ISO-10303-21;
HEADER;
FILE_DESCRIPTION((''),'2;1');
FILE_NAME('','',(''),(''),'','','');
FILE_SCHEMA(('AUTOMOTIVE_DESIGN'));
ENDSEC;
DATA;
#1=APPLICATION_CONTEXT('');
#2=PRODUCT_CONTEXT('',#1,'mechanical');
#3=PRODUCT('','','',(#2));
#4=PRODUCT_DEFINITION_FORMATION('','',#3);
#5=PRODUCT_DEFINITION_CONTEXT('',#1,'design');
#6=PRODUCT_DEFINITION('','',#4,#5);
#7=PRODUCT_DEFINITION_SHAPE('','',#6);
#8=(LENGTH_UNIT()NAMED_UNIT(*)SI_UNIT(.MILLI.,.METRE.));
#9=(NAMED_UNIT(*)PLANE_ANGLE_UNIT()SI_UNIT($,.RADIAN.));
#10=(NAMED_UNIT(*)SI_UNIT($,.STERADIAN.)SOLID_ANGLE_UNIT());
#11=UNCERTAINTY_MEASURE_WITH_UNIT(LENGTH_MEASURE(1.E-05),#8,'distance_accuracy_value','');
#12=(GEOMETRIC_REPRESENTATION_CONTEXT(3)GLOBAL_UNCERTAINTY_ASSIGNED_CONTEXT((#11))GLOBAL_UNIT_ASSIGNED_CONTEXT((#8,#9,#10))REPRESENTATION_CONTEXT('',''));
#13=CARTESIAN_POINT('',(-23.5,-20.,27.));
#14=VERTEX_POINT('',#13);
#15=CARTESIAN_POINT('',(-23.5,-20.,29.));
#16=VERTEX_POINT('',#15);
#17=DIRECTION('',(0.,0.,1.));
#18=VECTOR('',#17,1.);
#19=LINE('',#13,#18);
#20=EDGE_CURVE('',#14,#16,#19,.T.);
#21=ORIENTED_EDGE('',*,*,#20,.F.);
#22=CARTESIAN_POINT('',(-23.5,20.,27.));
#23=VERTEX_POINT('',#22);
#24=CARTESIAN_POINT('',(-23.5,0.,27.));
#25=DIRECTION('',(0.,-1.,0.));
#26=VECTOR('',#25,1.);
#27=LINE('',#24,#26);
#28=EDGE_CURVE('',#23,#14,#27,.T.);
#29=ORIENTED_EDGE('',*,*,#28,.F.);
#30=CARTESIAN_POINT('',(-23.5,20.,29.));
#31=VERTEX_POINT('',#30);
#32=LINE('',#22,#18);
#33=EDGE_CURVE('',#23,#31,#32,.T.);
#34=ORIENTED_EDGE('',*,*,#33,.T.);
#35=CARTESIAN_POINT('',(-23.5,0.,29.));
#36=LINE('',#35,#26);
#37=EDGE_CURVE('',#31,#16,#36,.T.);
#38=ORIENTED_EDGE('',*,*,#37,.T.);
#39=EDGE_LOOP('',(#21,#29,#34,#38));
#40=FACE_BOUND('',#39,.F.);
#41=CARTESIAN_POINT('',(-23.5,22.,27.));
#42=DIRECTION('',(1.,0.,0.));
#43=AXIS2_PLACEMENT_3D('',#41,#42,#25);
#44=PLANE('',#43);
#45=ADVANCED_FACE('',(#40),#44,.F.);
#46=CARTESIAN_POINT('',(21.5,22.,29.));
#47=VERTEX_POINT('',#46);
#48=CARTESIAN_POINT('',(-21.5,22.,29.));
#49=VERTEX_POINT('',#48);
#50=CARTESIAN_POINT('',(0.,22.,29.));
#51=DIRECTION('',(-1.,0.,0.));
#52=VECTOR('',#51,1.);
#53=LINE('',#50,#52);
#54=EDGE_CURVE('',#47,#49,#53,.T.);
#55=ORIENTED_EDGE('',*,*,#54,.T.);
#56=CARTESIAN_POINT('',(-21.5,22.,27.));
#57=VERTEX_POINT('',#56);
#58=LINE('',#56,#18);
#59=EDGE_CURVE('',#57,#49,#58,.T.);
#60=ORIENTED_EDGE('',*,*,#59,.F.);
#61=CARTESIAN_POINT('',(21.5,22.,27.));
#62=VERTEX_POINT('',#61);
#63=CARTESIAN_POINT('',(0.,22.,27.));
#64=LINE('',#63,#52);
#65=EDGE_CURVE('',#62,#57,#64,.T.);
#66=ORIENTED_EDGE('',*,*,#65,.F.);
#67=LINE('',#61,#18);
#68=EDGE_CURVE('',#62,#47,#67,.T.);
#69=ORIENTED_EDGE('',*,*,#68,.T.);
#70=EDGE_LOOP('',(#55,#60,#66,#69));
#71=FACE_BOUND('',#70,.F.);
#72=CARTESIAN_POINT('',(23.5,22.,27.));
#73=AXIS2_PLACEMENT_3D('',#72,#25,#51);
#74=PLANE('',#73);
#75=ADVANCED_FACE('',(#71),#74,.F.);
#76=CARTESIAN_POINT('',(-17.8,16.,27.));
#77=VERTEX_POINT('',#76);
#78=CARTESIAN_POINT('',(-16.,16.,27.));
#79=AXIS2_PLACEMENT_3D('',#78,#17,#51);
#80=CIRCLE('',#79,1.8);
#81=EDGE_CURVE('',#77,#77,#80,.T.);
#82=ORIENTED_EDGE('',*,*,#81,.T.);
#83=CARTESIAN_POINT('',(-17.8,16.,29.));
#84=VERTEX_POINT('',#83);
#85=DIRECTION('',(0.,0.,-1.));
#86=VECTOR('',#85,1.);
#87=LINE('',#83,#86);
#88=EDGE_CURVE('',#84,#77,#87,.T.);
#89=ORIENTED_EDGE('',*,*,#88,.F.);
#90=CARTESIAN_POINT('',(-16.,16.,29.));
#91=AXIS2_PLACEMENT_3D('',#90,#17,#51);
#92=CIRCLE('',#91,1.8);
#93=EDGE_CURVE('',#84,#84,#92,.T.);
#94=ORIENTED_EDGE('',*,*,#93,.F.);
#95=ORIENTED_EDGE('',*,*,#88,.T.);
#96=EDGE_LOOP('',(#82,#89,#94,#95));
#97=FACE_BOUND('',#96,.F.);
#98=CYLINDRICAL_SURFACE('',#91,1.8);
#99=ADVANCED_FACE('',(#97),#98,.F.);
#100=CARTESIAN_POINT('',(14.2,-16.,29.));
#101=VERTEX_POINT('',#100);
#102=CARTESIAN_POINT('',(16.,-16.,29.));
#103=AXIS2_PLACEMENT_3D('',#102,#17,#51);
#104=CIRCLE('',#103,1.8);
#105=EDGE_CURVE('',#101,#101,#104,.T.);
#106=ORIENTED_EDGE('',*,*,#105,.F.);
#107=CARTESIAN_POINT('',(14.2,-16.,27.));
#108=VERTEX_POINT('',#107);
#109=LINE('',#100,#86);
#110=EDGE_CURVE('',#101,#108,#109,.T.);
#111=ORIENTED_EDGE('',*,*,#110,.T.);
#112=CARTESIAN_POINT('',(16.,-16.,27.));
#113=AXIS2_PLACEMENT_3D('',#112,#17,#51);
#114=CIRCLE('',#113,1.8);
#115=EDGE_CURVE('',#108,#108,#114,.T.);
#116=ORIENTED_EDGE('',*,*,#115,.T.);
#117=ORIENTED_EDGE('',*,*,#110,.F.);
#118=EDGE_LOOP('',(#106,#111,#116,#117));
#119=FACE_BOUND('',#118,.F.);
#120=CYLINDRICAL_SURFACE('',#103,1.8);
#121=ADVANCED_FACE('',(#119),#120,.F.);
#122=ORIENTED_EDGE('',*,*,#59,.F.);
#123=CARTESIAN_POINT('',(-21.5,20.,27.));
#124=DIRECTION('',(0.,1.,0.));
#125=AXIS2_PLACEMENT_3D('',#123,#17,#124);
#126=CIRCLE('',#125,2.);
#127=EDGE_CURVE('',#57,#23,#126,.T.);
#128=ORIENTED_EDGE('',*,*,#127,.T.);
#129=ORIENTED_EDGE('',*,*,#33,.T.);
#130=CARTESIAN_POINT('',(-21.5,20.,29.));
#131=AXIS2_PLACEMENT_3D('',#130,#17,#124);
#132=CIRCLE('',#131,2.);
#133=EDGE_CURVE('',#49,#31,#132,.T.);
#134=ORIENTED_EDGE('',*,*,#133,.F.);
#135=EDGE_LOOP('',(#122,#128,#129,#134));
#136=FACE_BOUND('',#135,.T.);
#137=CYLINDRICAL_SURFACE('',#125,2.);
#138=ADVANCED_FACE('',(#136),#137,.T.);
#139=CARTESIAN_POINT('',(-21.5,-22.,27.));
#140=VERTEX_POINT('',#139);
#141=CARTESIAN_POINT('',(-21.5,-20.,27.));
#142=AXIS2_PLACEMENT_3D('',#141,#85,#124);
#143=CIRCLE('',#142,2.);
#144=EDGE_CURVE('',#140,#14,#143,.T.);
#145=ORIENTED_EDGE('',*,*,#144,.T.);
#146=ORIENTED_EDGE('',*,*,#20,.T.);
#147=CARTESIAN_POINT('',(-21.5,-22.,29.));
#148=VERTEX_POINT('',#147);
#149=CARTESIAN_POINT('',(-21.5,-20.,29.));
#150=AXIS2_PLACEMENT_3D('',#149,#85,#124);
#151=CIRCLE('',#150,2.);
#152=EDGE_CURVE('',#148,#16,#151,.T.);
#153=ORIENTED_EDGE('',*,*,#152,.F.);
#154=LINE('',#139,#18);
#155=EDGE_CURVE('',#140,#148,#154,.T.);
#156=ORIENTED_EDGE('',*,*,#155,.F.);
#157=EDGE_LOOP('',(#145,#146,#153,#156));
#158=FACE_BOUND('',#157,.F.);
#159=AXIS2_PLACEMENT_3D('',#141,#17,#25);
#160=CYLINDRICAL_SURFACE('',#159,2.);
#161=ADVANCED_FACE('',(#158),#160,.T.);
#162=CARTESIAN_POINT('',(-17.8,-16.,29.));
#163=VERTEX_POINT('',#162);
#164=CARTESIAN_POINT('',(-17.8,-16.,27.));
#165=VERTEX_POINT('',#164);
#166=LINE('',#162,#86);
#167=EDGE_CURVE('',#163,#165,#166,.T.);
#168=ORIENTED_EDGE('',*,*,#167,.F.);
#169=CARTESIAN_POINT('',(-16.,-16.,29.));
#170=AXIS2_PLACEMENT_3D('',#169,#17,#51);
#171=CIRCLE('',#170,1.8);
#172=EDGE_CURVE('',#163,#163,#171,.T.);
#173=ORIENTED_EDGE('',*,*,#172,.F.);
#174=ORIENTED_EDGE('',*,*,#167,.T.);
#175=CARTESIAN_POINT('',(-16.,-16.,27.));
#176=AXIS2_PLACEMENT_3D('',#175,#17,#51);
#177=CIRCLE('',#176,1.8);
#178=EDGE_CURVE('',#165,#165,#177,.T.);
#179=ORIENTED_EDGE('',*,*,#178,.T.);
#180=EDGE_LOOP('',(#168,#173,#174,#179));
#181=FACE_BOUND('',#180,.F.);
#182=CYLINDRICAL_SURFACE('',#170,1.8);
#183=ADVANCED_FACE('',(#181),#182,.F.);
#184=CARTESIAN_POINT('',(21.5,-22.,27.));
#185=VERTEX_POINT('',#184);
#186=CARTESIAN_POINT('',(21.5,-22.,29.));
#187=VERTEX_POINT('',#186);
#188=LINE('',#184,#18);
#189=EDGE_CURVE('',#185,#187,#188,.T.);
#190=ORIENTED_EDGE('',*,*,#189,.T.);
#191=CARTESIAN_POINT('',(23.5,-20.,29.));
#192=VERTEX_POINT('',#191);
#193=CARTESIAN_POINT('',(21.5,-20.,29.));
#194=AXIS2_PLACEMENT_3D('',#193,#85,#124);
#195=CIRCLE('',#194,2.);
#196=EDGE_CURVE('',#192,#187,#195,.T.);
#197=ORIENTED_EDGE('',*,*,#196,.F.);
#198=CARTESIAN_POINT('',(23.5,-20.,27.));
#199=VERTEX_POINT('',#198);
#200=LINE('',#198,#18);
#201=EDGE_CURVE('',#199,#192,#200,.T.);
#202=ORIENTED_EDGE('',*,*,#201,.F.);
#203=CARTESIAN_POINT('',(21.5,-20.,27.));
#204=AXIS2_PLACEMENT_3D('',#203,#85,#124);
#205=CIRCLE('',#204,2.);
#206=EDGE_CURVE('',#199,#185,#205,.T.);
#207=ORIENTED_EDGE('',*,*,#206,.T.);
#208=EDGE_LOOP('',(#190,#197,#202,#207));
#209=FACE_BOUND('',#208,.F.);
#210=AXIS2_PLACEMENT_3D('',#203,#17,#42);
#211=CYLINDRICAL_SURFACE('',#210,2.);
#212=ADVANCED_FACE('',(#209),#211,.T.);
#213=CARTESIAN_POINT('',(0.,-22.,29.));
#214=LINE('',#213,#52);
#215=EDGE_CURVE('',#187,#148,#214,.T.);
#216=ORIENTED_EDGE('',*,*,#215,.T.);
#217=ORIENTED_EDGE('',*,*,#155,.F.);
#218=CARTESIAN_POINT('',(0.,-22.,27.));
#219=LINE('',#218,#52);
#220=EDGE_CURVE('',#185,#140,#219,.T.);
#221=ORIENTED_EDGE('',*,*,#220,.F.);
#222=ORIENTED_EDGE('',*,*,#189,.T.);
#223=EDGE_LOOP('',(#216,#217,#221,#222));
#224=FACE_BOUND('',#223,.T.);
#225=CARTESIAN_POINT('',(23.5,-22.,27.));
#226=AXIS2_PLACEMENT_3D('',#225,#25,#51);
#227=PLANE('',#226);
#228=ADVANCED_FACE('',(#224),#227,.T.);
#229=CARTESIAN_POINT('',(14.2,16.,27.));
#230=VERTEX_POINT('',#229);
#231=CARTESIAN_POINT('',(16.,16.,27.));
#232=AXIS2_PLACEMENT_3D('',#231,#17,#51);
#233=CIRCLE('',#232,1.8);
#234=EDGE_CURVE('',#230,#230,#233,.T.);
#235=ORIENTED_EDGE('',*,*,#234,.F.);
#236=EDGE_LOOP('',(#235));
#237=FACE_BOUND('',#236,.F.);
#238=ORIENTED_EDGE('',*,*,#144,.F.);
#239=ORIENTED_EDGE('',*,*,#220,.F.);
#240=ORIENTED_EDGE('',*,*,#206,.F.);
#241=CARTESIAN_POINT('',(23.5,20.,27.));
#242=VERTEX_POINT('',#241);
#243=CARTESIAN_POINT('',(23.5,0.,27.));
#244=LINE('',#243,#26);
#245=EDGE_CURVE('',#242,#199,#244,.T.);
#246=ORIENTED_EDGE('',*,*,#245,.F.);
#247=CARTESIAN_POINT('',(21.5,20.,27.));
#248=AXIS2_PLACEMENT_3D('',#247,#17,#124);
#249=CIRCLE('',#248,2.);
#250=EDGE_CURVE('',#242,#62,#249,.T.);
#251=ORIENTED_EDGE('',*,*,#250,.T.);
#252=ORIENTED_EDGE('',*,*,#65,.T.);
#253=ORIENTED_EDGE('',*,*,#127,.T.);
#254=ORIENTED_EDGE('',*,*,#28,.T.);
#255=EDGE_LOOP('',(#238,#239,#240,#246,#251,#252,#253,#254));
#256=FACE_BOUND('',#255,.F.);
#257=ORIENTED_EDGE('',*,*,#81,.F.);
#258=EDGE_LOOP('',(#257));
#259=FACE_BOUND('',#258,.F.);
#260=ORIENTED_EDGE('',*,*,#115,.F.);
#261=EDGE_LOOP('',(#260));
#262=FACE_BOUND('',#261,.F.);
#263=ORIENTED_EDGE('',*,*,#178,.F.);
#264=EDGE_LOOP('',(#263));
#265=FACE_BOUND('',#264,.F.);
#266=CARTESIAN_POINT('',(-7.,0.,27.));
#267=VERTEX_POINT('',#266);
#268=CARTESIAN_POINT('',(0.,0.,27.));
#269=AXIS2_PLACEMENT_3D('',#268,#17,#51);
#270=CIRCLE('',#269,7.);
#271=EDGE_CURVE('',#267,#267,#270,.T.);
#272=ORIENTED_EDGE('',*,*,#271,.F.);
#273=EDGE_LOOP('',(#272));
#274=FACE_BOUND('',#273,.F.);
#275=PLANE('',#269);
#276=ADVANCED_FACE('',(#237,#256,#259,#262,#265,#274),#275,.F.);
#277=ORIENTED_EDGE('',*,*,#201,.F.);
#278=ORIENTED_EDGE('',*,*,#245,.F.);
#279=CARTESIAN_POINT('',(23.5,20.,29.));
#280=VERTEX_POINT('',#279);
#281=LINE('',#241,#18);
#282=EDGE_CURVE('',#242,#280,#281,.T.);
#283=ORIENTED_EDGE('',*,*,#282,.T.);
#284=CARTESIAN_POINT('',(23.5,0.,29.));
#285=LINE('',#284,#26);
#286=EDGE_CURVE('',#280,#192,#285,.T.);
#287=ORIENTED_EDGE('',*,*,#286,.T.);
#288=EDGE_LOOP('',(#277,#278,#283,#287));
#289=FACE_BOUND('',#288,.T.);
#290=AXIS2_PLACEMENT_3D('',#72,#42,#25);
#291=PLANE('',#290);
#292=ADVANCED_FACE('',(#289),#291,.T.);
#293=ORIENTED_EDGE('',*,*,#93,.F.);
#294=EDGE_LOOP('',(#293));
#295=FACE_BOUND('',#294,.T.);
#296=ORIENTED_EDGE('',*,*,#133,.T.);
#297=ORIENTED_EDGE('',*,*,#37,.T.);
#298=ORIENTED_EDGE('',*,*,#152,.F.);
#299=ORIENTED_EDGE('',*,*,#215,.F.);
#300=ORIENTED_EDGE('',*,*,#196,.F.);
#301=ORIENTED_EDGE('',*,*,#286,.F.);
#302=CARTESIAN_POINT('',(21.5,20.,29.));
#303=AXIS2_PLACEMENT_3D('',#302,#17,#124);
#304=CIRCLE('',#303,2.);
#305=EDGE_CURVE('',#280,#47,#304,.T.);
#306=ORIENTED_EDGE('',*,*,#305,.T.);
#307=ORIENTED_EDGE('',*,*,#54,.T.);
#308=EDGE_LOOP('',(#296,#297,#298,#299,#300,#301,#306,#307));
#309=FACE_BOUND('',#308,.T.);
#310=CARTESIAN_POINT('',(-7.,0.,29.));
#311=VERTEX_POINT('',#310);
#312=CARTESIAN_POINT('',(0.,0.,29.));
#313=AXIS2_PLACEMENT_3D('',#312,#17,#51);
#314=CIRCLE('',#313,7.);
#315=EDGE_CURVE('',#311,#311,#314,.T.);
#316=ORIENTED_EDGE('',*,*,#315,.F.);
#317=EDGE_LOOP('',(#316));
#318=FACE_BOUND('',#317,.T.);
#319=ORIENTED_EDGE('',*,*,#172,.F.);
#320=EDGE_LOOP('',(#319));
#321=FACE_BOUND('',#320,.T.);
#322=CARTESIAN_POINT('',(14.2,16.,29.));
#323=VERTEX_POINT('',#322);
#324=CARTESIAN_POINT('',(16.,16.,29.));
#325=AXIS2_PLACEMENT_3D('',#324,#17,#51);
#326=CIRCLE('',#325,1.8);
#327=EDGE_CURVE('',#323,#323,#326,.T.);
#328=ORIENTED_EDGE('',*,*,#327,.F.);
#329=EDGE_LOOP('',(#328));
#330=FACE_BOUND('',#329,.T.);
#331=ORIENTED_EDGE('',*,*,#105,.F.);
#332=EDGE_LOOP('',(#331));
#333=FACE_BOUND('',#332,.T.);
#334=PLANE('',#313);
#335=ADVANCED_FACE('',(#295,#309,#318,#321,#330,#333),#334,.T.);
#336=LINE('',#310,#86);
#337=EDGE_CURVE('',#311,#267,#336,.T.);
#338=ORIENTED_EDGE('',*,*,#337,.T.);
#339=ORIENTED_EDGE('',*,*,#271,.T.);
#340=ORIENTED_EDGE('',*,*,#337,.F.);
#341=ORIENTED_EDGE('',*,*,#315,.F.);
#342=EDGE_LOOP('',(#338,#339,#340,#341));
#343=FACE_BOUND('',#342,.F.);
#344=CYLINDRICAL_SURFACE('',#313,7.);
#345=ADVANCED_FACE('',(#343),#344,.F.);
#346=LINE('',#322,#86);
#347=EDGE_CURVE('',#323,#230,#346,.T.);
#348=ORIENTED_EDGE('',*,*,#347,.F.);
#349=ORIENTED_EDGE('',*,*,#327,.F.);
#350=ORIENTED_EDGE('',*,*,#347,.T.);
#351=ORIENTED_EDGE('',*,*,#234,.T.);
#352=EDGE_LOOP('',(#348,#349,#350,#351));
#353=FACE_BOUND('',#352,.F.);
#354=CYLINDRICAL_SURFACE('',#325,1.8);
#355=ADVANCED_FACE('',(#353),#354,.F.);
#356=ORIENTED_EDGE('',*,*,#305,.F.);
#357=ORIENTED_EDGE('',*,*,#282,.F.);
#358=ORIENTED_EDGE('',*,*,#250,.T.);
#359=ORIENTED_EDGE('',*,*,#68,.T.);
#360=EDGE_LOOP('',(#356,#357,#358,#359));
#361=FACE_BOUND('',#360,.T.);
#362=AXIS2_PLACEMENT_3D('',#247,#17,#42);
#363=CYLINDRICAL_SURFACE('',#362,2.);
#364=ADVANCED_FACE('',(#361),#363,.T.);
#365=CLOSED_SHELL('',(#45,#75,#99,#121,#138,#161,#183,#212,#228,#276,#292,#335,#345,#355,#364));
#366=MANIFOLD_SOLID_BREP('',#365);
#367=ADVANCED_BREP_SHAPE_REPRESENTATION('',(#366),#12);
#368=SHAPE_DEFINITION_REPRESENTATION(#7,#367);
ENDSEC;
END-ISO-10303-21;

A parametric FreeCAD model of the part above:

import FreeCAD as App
import Part
import Sketcher


def edges_at(feature, points):
    """Names of the edges that pass closest to the given points."""
    edges = feature.Shape.Edges
    near = lambda p: min(range(len(edges)), key=lambda i: edges[i].distToShape(Part.Vertex(*p))[0])
    return sorted({f"Edge{near(p) + 1}" for p in points})

doc = App.newDocument("Part")
body = doc.addObject("PartDesign::Body", "Body")

sketch1 = body.newObject("Sketcher::SketchObject", "Sketch")
sketch1.AttachmentSupport = (doc.getObject("XY_Plane"), [""])
sketch1.MapMode = "FlatFace"
sketch1.addGeometry([
    Part.LineSegment(App.Vector(-24, 22, 0), App.Vector(-24, -22, 0)),
    Part.LineSegment(App.Vector(-24, -22, 0), App.Vector(24, -22, 0)),
    Part.LineSegment(App.Vector(24, -22, 0), App.Vector(24, 22, 0)),
    Part.LineSegment(App.Vector(24, 22, 0), App.Vector(-24, 22, 0)),
], False)
sketch1.addConstraint([
    Sketcher.Constraint("Coincident", 0, 2, 1, 1),
    Sketcher.Constraint("Coincident", 1, 2, 2, 1),
    Sketcher.Constraint("Coincident", 2, 2, 3, 1),
    Sketcher.Constraint("Coincident", 3, 2, 0, 1),
    Sketcher.Constraint("Vertical", 0),
    Sketcher.Constraint("Horizontal", 1),
    Sketcher.Constraint("Vertical", 2),
    Sketcher.Constraint("Horizontal", 3),
    Sketcher.Constraint("Symmetric", 0, 2, 2, 2, -1, 1),
    Sketcher.Constraint("DistanceX", 1, 1, 1, 2, 47.0),
    Sketcher.Constraint("DistanceY", 0, 2, 0, 1, 44.0),
])
pad1 = body.newObject("PartDesign::Pad", "Pad")
pad1.Profile = sketch1
pad1.Length = 2

sketch2 = body.newObject("Sketcher::SketchObject", "Sketch001")
sketch2.AttachmentSupport = (doc.getObject("XY_Plane"), [""])
sketch2.MapMode = "FlatFace"
sketch2.AttachmentOffset = App.Placement(App.Vector(0, 0, 2), App.Rotation())
sketch2.addGeometry(Part.Circle(App.Vector(0, 0, 0), App.Vector(0, 0, 1), 7), False)
sketch2.addConstraint([
    Sketcher.Constraint("Coincident", 0, 3, -1, 1),
    Sketcher.Constraint("Diameter", 0, 14.0),
])
pocket1 = body.newObject("PartDesign::Pocket", "Pocket")
pocket1.Profile = sketch2
pocket1.Length = 25

sketch3 = body.newObject("Sketcher::SketchObject", "Sketch002")
sketch3.AttachmentSupport = (doc.getObject("XY_Plane"), [""])
sketch3.MapMode = "FlatFace"
sketch3.AttachmentOffset = App.Placement(App.Vector(0, 0, 2), App.Rotation())
sketch3.addGeometry([
    Part.Circle(App.Vector(-16, 16, 0), App.Vector(0, 0, 1), 1.8),
    Part.Circle(App.Vector(16, 16, 0), App.Vector(0, 0, 1), 1.8),
    Part.Circle(App.Vector(-16, -16, 0), App.Vector(0, 0, 1), 1.8),
    Part.Circle(App.Vector(16, -16, 0), App.Vector(0, 0, 1), 1.8),
], False)
sketch3.addConstraint([
    Sketcher.Constraint("Equal", 0, 1),
    Sketcher.Constraint("Equal", 1, 2),
    Sketcher.Constraint("Equal", 2, 3),
    Sketcher.Constraint("Symmetric", 1, 3, 2, 3, -1, 1),
    Sketcher.Constraint("Symmetric", 0, 3, 3, 3, -1, 1),
    Sketcher.Constraint("Symmetric", 0, 3, 1, 3, -2),
    Sketcher.Constraint("Diameter", 0, 3.6),
    Sketcher.Constraint("DistanceX", 0, 3, -1, 1, 16.0),
    Sketcher.Constraint("DistanceY", -1, 1, 0, 3, 16.0),
])
pocket2 = body.newObject("PartDesign::Pocket", "Pocket001")
pocket2.Profile = sketch3
pocket2.Length = 25
doc.recompute()

fillet = body.newObject("PartDesign::Fillet", "Fillet")
fillet.Base = (pocket2, edges_at(pocket2, [
    (-23.5, -22, 1),
    (23.5, -22, 1),
    (23.5, 22, 1),
    (-23.5, 22, 1),
]))
fillet.Radius = 2
body2 = doc.addObject("PartDesign::Body", "Body001")
doc.recompute()

body.Placement = App.Placement(App.Vector(0, 0, 27), App.Rotation(App.Vector(0, 0, 1), 180))
boolean = body2.newObject("PartDesign::Boolean", "Boolean")
boolean.Type = "Fuse"
boolean.addObjects([body])

doc.recompute()
